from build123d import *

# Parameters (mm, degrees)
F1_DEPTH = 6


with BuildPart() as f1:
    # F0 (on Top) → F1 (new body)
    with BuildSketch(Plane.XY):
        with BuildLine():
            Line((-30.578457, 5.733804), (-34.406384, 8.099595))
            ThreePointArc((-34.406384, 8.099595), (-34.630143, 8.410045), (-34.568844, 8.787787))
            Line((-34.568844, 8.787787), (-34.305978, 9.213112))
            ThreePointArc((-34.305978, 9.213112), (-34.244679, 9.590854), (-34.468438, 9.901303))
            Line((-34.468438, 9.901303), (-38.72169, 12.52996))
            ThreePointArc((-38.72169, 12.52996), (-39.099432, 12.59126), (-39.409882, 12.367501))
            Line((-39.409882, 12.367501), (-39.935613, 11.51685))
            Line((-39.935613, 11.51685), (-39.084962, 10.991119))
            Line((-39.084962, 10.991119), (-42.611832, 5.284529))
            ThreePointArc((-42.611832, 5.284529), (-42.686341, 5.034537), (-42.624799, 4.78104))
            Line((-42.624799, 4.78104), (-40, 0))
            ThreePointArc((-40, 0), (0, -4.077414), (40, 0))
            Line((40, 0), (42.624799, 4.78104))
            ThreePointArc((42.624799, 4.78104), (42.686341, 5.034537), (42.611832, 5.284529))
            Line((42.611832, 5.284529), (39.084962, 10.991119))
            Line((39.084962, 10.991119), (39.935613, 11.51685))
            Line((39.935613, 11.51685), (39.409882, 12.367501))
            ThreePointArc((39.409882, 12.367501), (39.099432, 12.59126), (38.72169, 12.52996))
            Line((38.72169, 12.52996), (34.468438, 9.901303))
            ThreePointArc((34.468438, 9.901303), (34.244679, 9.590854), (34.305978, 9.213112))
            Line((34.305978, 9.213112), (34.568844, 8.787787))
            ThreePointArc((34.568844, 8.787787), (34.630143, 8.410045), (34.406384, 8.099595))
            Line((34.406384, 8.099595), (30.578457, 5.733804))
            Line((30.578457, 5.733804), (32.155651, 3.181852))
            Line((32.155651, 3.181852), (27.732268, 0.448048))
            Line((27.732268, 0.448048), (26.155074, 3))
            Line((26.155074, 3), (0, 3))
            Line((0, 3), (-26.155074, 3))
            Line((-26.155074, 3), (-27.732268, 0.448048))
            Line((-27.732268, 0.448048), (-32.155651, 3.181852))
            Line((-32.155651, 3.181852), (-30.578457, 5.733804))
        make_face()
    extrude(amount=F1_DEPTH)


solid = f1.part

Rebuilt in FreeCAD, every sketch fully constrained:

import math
import FreeCAD as App
import Part
import Sketcher
from FreeCAD import Vector

doc = App.newDocument("Part")
params = doc.addObject("Spreadsheet::Sheet", "Params")
for row, (alias, value) in enumerate([
    ("sketch1_radius", "0.500002 mm"),
    ("sketch1_length", "4.999999 mm"),
    ("sketch1_length2", "1 mm"),
    ("sketch1_length3", "3 mm"),
    ("sketch1_length4", "4.499999 mm"),
    ("pad1_length", "6 mm"),
], start=1):
    params.set(f"A{row}", alias)
    params.set(f"B{row}", "=" + value)
    params.setAlias(f"B{row}", alias)

body = doc.addObject("PartDesign::Body", "Body")

# Sketch on XY plane
sketch1 = body.newObject("Sketcher::SketchObject", "Sketch")
sketch1.AttachmentSupport = (doc.getObject("XY_Plane"), [""])
sketch1.MapMode = "FlatFace"
sketch1.addGeometry([
    Part.LineSegment(Vector(-30.58, 5.73, 0), Vector(-34.41, 8.1, 0)),  # 0
    Part.ArcOfCircle(Part.Circle(Vector(-34.14, 8.52, 0), Vector(0, 0, 1), 0.5), math.radians(148), math.radians(238)),  # 1
    Part.LineSegment(Vector(-34.57, 8.79, 0), Vector(-34.31, 9.21, 0)),  # 2
    Part.ArcOfCircle(Part.Circle(Vector(-34.73, 9.48, 0), Vector(0, 0, 1), 0.5), math.radians(-32), math.radians(58)),  # 3
    Part.LineSegment(Vector(-34.47, 9.9, 0), Vector(-38.72, 12.53, 0)),  # 4
    Part.ArcOfCircle(Part.Circle(Vector(-38.98, 12.1, 0), Vector(0, 0, 1), 0.5), math.radians(58), math.radians(148)),  # 5
    Part.LineSegment(Vector(-39.41, 12.37, 0), Vector(-39.94, 11.52, 0)),  # 6
    Part.LineSegment(Vector(-39.94, 11.52, 0), Vector(-39.08, 10.99, 0)),  # 7
    Part.LineSegment(Vector(-39.08, 10.99, 0), Vector(-42.61, 5.28, 0)),  # 8
    Part.ArcOfCircle(Part.Circle(Vector(-42.19, 5.02, 0), Vector(0, 0, 1), 0.5), math.radians(148), math.radians(209)),  # 9
    Part.LineSegment(Vector(-42.62, 4.78, 0), Vector(-40, 0, 0)),  # 10
    Part.ArcOfCircle(Part.Circle(Vector(0, 194.16, 0), Vector(0, 0, 1), 198.24), math.radians(-102), math.radians(-78)),  # 11
    Part.LineSegment(Vector(40, 0, 0), Vector(42.62, 4.78, 0)),  # 12
    Part.ArcOfCircle(Part.Circle(Vector(42.19, 5.02, 0), Vector(0, 0, 1), 0.5), math.radians(-29), math.radians(32)),  # 13
    Part.LineSegment(Vector(42.61, 5.28, 0), Vector(39.08, 10.99, 0)),  # 14
    Part.LineSegment(Vector(39.08, 10.99, 0), Vector(39.94, 11.52, 0)),  # 15
    Part.LineSegment(Vector(39.94, 11.52, 0), Vector(39.41, 12.37, 0)),  # 16
    Part.ArcOfCircle(Part.Circle(Vector(38.98, 12.1, 0), Vector(0, 0, 1), 0.5), math.radians(32), math.radians(122)),  # 17
    Part.LineSegment(Vector(38.72, 12.53, 0), Vector(34.47, 9.9, 0)),  # 18
    Part.ArcOfCircle(Part.Circle(Vector(34.73, 9.48, 0), Vector(0, 0, 1), 0.5), math.radians(122), math.radians(212)),  # 19
    Part.LineSegment(Vector(34.31, 9.21, 0), Vector(34.57, 8.79, 0)),  # 20
    Part.ArcOfCircle(Part.Circle(Vector(34.14, 8.52, 0), Vector(0, 0, 1), 0.5), math.radians(-58), math.radians(32)),  # 21
    Part.LineSegment(Vector(34.41, 8.1, 0), Vector(30.58, 5.73, 0)),  # 22
    Part.LineSegment(Vector(30.58, 5.73, 0), Vector(32.16, 3.18, 0)),  # 23
    Part.LineSegment(Vector(32.16, 3.18, 0), Vector(27.73, 0.45, 0)),  # 24
    Part.LineSegment(Vector(27.73, 0.45, 0), Vector(26.16, 3, 0)),  # 25
    Part.LineSegment(Vector(26.16, 3, 0), Vector(-26.16, 3, 0)),  # 26
    Part.LineSegment(Vector(-26.16, 3, 0), Vector(-27.73, 0.45, 0)),  # 27
    Part.LineSegment(Vector(-27.73, 0.45, 0), Vector(-32.16, 3.18, 0)),  # 28
    Part.LineSegment(Vector(-32.16, 3.18, 0), Vector(-30.58, 5.73, 0)),  # 29
], False)
sketch1.addConstraint([
    Sketcher.Constraint("Tangent", 0, 2, 1, 2),
    Sketcher.Constraint("Coincident", 1, 1, 2, 1),
    Sketcher.Constraint("Tangent", 2, 2, 3, 1),
    Sketcher.Constraint("Tangent", 3, 2, 4, 1),
    Sketcher.Constraint("Tangent", 4, 2, 5, 1),
    Sketcher.Constraint("Tangent", 5, 2, 6, 1),
    Sketcher.Constraint("Coincident", 6, 2, 7, 1),
    Sketcher.Constraint("Coincident", 7, 2, 8, 1),
    Sketcher.Constraint("Tangent", 8, 2, 9, 1),
    Sketcher.Constraint("Coincident", 9, 2, 10, 1),
    Sketcher.Constraint("Coincident", 10, 2, 11, 1),
    Sketcher.Constraint("Coincident", 11, 2, 12, 1),
    Sketcher.Constraint("Coincident", 12, 2, 13, 1),
    Sketcher.Constraint("Tangent", 13, 2, 14, 1),
    Sketcher.Constraint("Coincident", 14, 2, 15, 1),
    Sketcher.Constraint("Coincident", 15, 2, 16, 1),
    Sketcher.Constraint("Tangent", 16, 2, 17, 1),
    Sketcher.Constraint("Tangent", 17, 2, 18, 1),
    Sketcher.Constraint("Tangent", 18, 2, 19, 1),
    Sketcher.Constraint("Tangent", 19, 2, 20, 1),
    Sketcher.Constraint("Coincident", 20, 2, 21, 2),
    Sketcher.Constraint("Tangent", 21, 1, 22, 1),
    Sketcher.Constraint("Coincident", 22, 2, 23, 1),
    Sketcher.Constraint("Coincident", 23, 2, 24, 1),
    Sketcher.Constraint("Coincident", 24, 2, 25, 1),
    Sketcher.Constraint("Coincident", 25, 2, 26, 1),
    Sketcher.Constraint("Coincident", 26, 2, 27, 1),
    Sketcher.Constraint("Coincident", 27, 2, 28, 1),
    Sketcher.Constraint("Coincident", 28, 2, 29, 1),
    Sketcher.Constraint("Coincident", 29, 2, 0, 1),
    Sketcher.Constraint("Horizontal", 26),
    Sketcher.Constraint("Equal", 1, 3),
    Sketcher.Constraint("Equal", 3, 5),
    Sketcher.Constraint("Equal", 5, 9),
    Sketcher.Constraint("Equal", 9, 13),
    Sketcher.Constraint("Equal", 13, 17),
    Sketcher.Constraint("Equal", 17, 19),
    Sketcher.Constraint("Equal", 19, 21),
    Sketcher.Constraint("Symmetric", 10, 2, 11, 2, -1, 1),
    Sketcher.Constraint("Symmetric", 9, 3, 13, 3, -2),
    Sketcher.Constraint("Symmetric", 5, 3, 17, 3, -2),
    Sketcher.Constraint("Symmetric", 3, 3, 19, 3, -2),
    Sketcher.Constraint("Symmetric", 1, 3, 21, 3, -2),
    Sketcher.Constraint("Symmetric", 7, 2, 14, 2, -2),
    Sketcher.Constraint("Symmetric", 6, 2, 15, 2, -2),
    Sketcher.Constraint("Symmetric", 24, 2, 27, 2, -2),
    Sketcher.Constraint("Symmetric", 23, 2, 28, 2, -2),
    Sketcher.Constraint("Symmetric", 22, 2, 29, 2, -2),
    Sketcher.Constraint("PointOnObject", 11, 3, -2),
    Sketcher.Constraint("Perpendicular", 0, 2),
    Sketcher.Constraint("Perpendicular", 2, 4),
    Sketcher.Constraint("Perpendicular", 4, 6),
    Sketcher.Constraint("Perpendicular", 6, 7),
    Sketcher.Constraint("Perpendicular", 7, 8),
    Sketcher.Constraint("Perpendicular", 22, 23),
    Sketcher.Constraint("Perpendicular", 23, 24),
    Sketcher.Constraint("Perpendicular", 24, 25),
    Sketcher.Constraint("Parallel", 8, 27),
    Sketcher.Constraint("Horizontal", 9, 2, 12, 2),
    Sketcher.Constraint("Horizontal", 1, 1, 20, 2),
    Sketcher.Constraint("Equal", 6, 7),
    Sketcher.Constraint("Equal", 23, 25),
    Sketcher.Constraint("Radius", 1, 0.500002),
    Sketcher.Constraint("Distance", 4, 4.999999),
    Sketcher.Constraint("Distance", 6, 1.0),
    Sketcher.Constraint("Distance", 23, 3.0),
    Sketcher.Constraint("DistanceX", 10, 2, -1, 1, 40.0),
    Sketcher.Constraint("DistanceY", -1, 1, 25, 2, 3.0),
    Sketcher.Constraint("Distance", 0, 4.499999),
    Sketcher.Constraint("Distance", 2, 0.5),
    Sketcher.Constraint("Distance", 24, 5.2),
    Sketcher.Constraint("Radius", 11, 198.241496),
    Sketcher.Constraint("Distance", 8, 6.708501),
    Sketcher.Constraint("DistanceY", -1, 1, 5, 2, 12.367501),
    Sketcher.Constraint("DistanceX", 9, 2, -1, 1, 42.624799),
    Sketcher.Constraint("DistanceX", 0, 2, 21, 3, 68.549901),
    Sketcher.Constraint("DistanceY", 3, 2, 5, 2, 2.466198),
])
sketch1.setExpression("Constraints[62]", "Params.sketch1_radius")
sketch1.setExpression("Constraints[63]", "Params.sketch1_length")
sketch1.setExpression("Constraints[64]", "Params.sketch1_length2")
sketch1.setExpression("Constraints[65]", "Params.sketch1_length3")
sketch1.setExpression("Constraints[68]", "Params.sketch1_length4")
pad1 = body.newObject("PartDesign::Pad", "Pad")
pad1.Profile = sketch1
pad1.setExpression("Length", "Params.pad1_length")

doc.recompute()
